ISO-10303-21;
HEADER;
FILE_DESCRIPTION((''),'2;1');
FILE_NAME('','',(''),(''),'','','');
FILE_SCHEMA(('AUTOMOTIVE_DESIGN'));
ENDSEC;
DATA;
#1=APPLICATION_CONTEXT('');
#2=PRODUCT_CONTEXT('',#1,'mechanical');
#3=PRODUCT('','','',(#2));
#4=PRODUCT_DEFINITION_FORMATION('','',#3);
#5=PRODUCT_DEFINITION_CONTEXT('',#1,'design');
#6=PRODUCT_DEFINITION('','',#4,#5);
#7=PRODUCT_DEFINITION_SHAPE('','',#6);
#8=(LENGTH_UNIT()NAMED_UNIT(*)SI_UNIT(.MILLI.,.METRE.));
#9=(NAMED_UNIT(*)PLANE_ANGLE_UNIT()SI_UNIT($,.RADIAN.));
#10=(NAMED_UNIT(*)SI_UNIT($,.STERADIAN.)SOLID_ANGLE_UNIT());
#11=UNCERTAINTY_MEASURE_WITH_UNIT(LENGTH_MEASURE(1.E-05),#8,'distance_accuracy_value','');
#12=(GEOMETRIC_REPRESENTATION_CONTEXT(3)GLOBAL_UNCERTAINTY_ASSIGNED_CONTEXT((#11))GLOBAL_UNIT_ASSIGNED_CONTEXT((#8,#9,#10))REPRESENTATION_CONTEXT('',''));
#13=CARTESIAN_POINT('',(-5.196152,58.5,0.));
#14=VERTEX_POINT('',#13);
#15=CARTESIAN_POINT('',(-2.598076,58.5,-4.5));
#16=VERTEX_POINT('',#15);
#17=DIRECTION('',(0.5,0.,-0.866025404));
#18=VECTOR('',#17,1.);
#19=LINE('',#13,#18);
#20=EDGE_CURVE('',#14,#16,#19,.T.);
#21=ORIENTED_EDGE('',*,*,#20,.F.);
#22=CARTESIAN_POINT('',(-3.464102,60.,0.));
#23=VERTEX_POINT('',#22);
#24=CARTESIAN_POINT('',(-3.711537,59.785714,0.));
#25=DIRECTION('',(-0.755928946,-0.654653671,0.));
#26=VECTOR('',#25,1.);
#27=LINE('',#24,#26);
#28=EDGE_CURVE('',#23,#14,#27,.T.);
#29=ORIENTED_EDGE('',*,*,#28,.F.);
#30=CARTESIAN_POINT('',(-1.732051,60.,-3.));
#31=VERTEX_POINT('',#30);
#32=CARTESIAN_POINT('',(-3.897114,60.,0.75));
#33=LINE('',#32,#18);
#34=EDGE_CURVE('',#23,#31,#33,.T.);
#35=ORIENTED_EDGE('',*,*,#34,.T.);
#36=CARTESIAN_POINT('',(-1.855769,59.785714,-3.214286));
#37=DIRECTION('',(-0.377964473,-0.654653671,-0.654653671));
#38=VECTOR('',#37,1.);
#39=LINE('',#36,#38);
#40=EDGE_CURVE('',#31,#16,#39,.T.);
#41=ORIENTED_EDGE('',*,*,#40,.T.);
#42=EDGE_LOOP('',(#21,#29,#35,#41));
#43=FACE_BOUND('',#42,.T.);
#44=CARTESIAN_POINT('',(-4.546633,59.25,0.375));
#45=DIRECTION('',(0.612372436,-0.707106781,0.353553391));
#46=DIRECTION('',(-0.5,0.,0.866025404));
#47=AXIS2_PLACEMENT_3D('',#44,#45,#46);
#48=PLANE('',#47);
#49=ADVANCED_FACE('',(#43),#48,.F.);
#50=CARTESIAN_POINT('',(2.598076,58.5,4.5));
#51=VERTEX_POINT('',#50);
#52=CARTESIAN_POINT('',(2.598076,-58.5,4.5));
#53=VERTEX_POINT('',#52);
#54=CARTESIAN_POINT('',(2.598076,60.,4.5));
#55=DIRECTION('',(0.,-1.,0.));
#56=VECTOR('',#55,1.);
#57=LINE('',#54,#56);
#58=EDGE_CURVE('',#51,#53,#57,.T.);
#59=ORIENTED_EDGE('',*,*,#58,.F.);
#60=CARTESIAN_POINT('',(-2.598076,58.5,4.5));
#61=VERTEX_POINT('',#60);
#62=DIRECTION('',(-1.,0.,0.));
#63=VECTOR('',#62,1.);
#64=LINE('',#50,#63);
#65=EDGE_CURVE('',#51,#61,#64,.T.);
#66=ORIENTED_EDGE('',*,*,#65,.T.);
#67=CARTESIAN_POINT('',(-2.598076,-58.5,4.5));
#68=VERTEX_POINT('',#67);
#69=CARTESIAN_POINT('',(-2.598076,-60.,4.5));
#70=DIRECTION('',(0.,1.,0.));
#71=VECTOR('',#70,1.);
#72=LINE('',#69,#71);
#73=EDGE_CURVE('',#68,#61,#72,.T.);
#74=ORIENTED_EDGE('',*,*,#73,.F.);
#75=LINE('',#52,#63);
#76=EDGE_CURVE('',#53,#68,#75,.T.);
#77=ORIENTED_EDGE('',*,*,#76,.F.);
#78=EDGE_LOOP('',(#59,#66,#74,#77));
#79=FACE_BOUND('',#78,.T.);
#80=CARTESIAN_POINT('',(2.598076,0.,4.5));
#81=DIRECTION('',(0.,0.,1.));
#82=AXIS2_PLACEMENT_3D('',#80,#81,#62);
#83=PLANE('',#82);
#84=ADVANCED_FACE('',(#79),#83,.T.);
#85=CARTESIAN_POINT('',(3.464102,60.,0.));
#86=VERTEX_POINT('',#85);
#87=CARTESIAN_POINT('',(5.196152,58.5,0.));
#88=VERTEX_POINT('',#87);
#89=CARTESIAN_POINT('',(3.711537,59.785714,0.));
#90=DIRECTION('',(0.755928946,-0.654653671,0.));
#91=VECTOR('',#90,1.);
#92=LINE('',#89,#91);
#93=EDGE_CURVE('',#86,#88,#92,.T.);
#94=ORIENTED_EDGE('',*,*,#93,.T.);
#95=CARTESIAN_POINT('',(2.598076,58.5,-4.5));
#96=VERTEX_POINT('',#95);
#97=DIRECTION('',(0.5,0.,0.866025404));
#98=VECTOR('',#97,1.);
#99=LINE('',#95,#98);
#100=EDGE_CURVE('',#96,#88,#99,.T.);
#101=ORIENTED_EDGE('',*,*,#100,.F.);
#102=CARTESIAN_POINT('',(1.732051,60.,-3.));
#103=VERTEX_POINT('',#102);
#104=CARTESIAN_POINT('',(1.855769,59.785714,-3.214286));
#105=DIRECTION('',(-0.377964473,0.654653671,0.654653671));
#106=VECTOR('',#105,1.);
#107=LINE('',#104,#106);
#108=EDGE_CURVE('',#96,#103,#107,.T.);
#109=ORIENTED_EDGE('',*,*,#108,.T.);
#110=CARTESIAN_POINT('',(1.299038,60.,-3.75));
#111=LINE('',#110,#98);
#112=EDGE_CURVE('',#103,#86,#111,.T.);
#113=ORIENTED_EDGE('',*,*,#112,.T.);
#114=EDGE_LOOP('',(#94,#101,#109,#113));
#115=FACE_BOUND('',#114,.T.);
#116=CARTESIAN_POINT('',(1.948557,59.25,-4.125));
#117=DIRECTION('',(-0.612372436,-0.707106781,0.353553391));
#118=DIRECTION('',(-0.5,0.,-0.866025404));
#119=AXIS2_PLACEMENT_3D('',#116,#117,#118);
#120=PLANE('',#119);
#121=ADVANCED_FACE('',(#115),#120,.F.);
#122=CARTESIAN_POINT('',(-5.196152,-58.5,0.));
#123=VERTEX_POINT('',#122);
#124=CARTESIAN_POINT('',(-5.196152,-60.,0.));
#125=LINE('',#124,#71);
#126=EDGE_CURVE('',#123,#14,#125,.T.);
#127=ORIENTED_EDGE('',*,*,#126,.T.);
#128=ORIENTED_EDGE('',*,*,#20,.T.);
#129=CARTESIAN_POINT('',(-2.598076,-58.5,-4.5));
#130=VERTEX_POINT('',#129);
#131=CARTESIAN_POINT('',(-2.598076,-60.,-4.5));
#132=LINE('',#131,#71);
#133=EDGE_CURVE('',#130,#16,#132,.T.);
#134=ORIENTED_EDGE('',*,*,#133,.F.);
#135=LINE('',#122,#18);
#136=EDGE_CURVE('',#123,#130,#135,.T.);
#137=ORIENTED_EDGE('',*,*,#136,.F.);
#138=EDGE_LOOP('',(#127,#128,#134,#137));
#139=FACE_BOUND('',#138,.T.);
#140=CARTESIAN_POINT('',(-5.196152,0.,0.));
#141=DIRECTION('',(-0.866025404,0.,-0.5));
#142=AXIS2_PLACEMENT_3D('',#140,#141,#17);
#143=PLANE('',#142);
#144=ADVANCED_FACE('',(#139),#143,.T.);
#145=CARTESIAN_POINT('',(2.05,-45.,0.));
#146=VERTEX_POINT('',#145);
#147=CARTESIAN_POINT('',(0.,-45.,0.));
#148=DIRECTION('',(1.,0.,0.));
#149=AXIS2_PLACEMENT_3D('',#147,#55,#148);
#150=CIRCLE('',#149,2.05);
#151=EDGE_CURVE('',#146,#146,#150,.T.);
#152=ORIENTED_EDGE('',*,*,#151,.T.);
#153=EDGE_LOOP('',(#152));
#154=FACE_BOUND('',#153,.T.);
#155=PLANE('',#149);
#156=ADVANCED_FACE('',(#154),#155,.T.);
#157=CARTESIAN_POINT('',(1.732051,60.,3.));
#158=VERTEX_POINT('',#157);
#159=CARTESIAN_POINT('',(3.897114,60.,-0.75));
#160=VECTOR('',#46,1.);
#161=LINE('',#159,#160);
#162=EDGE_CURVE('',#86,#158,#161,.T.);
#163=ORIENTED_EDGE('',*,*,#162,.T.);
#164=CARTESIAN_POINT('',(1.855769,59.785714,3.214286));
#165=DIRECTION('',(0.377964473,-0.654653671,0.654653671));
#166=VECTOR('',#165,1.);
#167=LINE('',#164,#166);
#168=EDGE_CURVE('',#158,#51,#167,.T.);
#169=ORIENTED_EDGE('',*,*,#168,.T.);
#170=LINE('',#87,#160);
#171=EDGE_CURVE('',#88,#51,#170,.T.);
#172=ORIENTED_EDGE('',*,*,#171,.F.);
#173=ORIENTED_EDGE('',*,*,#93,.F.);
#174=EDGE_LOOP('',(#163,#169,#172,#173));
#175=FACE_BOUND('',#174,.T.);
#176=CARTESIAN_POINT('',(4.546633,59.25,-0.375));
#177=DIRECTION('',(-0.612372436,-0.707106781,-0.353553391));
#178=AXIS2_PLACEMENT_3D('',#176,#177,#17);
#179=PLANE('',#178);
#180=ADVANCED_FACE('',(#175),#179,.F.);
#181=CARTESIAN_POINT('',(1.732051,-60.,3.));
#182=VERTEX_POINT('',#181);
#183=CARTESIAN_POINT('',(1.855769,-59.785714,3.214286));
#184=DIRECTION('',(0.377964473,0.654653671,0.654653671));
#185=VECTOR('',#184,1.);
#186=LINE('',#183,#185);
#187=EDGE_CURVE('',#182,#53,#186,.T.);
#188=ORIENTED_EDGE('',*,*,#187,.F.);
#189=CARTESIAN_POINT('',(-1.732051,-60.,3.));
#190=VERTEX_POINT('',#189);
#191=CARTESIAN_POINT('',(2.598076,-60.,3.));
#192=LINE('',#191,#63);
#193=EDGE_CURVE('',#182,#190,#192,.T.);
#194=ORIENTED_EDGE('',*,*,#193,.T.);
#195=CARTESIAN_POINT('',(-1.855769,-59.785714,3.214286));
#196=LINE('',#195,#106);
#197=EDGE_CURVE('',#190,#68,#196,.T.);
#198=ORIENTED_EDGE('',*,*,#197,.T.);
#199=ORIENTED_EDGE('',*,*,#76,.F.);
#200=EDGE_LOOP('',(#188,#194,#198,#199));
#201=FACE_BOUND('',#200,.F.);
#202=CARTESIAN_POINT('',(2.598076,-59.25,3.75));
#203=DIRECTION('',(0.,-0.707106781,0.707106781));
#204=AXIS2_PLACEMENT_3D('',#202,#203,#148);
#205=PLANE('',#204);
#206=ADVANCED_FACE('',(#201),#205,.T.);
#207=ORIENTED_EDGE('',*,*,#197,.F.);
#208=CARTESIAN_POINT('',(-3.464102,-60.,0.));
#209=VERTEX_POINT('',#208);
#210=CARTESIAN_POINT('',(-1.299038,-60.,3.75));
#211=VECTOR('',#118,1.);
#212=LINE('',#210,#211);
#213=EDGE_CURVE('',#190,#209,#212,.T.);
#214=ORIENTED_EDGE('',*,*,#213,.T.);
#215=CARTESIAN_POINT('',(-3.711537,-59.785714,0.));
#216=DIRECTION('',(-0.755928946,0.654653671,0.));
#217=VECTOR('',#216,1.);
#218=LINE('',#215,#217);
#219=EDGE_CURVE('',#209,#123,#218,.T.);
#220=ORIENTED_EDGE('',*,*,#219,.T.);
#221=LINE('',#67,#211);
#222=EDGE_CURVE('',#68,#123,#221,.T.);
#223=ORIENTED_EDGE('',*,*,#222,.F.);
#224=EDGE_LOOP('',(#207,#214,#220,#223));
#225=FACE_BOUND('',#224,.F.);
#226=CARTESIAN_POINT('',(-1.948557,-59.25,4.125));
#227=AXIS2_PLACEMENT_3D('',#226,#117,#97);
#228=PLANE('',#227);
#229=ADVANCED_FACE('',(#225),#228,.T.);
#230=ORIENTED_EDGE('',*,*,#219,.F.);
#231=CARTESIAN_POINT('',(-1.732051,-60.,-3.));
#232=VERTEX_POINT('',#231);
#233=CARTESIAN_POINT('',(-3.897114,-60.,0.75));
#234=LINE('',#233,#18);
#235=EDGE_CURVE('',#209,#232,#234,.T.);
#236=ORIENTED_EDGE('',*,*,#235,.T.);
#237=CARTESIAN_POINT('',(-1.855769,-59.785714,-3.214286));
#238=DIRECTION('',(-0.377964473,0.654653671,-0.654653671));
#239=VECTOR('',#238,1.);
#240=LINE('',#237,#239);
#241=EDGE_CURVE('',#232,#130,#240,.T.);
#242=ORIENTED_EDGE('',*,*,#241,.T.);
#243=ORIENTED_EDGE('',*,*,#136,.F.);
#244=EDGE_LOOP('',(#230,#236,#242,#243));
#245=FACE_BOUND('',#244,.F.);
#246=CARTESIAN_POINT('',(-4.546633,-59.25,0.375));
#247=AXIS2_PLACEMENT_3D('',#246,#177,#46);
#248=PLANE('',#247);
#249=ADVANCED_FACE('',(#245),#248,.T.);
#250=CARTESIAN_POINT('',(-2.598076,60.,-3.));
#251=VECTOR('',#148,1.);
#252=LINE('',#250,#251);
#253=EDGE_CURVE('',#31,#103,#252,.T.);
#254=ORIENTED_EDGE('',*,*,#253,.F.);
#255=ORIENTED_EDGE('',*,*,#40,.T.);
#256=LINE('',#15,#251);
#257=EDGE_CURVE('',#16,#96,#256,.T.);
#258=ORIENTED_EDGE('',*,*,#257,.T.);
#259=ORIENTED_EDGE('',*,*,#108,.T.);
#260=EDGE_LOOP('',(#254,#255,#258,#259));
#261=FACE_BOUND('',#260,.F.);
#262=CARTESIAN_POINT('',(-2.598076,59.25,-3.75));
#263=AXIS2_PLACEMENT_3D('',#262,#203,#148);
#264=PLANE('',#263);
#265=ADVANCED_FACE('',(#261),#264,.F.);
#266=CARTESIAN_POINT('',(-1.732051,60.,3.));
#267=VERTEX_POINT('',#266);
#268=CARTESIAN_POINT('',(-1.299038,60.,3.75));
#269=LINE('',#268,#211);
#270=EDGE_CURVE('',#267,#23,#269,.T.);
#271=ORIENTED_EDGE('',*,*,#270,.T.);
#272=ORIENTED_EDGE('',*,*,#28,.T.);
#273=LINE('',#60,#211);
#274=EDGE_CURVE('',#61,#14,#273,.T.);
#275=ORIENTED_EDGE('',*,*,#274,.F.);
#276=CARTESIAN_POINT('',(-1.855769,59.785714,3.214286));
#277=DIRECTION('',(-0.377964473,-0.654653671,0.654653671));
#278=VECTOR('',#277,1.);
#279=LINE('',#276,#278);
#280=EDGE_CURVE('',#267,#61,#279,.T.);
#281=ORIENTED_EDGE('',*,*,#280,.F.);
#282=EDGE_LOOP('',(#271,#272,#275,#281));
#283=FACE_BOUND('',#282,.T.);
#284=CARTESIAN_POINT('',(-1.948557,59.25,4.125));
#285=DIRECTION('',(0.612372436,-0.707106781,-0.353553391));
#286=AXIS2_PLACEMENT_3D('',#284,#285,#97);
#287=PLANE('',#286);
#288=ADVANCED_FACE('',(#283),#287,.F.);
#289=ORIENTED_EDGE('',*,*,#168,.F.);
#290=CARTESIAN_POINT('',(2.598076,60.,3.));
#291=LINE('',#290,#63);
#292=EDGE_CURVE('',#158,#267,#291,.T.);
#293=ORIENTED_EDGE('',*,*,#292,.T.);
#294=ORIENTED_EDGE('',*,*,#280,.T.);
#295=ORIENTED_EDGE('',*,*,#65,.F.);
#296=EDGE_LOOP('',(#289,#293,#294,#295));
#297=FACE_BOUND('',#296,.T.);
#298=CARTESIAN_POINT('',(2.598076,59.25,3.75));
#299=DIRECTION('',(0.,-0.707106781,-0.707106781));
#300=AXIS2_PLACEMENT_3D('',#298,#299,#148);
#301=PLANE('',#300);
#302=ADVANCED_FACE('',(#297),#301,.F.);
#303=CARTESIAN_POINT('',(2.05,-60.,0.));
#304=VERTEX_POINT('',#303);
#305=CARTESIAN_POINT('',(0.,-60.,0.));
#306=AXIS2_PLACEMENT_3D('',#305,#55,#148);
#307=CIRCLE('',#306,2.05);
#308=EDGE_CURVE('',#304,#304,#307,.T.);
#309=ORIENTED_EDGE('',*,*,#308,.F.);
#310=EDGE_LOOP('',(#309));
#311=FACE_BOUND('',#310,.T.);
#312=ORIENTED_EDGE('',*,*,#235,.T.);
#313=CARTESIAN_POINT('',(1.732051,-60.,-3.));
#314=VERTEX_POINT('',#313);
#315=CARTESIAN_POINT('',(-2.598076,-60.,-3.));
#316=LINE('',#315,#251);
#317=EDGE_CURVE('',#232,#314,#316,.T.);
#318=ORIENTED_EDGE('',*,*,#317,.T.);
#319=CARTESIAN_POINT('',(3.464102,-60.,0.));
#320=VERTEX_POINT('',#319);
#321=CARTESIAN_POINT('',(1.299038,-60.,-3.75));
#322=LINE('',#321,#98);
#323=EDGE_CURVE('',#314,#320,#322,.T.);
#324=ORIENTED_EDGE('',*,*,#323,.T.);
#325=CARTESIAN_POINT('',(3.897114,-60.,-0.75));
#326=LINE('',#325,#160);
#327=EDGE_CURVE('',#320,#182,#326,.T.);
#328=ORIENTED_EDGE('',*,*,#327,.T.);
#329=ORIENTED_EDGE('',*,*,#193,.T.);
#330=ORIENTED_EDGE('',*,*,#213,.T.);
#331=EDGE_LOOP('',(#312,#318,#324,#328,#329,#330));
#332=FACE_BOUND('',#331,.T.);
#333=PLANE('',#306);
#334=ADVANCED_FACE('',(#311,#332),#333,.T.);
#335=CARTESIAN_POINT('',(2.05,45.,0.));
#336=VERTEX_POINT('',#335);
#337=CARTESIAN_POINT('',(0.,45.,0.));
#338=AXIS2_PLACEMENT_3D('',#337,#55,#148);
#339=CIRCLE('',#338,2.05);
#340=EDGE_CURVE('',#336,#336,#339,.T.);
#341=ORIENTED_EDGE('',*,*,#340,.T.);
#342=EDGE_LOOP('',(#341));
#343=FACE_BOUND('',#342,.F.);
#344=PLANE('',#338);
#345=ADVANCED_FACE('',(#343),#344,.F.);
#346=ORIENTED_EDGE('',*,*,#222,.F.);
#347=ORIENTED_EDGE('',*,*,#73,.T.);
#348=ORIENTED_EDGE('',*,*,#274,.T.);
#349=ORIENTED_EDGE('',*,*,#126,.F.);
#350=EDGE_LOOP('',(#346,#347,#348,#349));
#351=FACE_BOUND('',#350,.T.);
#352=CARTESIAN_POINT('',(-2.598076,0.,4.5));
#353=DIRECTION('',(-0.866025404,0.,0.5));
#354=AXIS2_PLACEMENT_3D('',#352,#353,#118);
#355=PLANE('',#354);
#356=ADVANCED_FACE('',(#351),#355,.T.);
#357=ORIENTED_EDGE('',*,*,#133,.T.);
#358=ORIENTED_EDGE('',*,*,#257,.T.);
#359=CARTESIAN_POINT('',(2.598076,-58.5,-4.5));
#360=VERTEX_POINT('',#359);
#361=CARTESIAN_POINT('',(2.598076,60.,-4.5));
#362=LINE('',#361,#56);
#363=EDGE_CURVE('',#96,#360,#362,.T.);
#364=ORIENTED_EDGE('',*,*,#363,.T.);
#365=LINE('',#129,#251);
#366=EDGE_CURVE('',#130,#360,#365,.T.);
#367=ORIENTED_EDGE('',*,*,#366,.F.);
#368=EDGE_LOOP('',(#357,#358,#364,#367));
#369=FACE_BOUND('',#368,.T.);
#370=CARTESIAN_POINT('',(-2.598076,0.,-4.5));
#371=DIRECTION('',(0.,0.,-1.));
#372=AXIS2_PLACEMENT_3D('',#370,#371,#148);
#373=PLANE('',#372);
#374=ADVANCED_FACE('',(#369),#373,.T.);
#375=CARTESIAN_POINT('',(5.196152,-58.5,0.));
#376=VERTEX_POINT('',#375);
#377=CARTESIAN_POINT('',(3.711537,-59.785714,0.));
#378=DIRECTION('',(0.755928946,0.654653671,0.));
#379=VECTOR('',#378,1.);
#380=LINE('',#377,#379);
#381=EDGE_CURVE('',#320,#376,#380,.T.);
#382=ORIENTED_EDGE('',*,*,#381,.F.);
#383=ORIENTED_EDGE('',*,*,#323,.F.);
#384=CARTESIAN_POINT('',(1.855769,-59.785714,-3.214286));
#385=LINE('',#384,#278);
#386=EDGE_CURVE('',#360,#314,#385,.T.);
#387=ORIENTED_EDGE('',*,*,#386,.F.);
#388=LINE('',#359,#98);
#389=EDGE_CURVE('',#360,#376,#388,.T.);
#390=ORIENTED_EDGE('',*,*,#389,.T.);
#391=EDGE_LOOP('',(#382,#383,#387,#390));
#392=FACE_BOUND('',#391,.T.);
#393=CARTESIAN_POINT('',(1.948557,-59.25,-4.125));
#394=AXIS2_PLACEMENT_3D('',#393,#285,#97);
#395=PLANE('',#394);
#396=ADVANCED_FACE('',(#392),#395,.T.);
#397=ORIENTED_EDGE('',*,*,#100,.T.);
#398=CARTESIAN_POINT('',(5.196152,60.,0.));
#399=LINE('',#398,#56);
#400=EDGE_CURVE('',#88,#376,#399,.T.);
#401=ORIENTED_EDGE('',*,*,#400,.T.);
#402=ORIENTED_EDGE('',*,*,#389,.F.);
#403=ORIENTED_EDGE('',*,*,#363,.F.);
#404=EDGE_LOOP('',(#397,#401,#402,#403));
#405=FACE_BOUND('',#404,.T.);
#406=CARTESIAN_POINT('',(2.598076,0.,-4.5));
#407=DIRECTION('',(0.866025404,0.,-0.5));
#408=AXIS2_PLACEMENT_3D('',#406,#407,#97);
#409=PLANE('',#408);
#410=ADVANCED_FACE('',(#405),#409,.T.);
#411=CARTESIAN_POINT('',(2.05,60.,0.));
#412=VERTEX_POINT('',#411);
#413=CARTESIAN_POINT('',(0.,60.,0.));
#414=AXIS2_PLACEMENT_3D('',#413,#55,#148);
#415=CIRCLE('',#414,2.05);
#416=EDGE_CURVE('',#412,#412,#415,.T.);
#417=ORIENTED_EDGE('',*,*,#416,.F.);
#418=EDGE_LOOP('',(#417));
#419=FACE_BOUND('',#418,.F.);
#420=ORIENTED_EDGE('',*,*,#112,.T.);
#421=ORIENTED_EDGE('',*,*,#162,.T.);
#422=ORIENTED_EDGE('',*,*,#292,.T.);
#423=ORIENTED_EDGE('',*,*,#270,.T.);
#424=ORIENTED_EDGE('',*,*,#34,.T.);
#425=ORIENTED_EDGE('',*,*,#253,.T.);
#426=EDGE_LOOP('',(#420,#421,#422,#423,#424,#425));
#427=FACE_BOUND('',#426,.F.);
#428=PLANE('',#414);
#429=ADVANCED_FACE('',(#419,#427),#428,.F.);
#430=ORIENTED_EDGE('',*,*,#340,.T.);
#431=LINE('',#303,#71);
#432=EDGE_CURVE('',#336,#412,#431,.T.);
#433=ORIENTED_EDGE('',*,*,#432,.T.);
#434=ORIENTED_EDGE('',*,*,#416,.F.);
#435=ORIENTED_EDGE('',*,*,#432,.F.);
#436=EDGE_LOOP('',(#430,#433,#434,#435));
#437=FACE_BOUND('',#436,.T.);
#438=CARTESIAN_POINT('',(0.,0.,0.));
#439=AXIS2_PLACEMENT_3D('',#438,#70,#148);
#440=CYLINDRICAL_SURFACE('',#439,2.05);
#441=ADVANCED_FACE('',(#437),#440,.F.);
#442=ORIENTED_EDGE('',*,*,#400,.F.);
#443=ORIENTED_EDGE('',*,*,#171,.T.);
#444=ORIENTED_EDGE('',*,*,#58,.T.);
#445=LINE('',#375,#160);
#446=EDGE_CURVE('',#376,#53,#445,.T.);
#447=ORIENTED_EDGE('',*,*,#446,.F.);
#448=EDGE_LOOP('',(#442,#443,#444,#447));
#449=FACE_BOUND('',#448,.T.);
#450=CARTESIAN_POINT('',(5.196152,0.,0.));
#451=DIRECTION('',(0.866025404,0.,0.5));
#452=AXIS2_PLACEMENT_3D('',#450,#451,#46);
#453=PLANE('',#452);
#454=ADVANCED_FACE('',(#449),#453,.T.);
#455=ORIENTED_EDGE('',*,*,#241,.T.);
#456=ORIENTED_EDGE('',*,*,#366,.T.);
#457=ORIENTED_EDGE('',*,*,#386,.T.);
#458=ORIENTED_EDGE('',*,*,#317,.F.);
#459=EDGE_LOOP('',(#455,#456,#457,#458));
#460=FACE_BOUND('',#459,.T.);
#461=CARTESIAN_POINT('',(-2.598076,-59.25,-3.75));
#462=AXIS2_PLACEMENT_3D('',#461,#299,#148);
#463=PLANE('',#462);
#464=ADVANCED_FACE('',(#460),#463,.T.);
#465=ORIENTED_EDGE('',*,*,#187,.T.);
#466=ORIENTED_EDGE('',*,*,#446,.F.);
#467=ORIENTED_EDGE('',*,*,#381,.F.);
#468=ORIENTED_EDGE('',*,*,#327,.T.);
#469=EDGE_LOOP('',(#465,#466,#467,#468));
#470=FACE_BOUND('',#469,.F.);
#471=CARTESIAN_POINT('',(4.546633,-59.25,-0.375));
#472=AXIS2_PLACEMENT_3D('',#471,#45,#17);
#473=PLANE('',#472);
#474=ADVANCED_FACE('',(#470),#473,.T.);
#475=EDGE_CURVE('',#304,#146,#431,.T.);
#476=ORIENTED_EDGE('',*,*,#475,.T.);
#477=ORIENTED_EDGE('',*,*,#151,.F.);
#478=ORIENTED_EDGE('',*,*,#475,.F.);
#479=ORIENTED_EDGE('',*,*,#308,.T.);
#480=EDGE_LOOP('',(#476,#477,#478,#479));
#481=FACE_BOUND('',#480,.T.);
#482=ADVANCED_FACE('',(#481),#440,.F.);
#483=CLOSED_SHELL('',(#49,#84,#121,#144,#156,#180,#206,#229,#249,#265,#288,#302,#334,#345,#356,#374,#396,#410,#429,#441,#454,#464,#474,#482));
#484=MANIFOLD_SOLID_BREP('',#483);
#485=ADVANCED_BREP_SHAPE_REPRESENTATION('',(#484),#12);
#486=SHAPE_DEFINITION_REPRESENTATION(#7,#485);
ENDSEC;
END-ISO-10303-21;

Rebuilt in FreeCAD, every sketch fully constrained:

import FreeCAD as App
import Part
import Sketcher
from FreeCAD import Vector
Q = App.Units.Quantity


def edges_at(feature, points):
    """Names of the edges that pass closest to the given points."""
    edges = feature.Shape.Edges
    near = lambda p: min(range(len(edges)), key=lambda i: edges[i].distToShape(Part.Vertex(*p))[0])
    return sorted({f"Edge{near(p) + 1}" for p in points})


def add_polygon(sketch, points):
    """Adds a closed chain of lines whose ends are joined by coincident constraints."""
    first, n = sketch.GeometryCount, len(points)
    for a, b in zip(points, points[1:] + points[:1]):
        sketch.addGeometry(Part.LineSegment(App.Vector(*a, 0), App.Vector(*b, 0)), False)
    for i in range(n):
        sketch.addConstraint(Sketcher.Constraint("Coincident", first + i, 2, first + (i + 1) % n, 1))

doc = App.newDocument("Part")
body = doc.addObject("PartDesign::Body", "Body")

sketch1 = body.newObject("Sketcher::SketchObject", "Sketch")
sketch1.AttachmentSupport = (doc.getObject("XZ_Plane"), [""])
sketch1.MapMode = "FlatFace"
add_polygon(sketch1, [(-2.6, -4.5), (2.6, -4.5), (5.2, 0), (2.6, 4.5), (-2.6, 4.5), (-5.2, 0)])
sketch1.addGeometry(Part.Circle(Vector(0, 0, 0), Vector(0, 0, 1), 2), False)
sketch1.addConstraint([
    Sketcher.Constraint("Horizontal", 0),
    Sketcher.Constraint("Horizontal", 3),
    Sketcher.Constraint("Coincident", 6, 3, -1, 1),
    Sketcher.Constraint("Symmetric", 0, 2, 3, 2, -1, 1),
    Sketcher.Constraint("Symmetric", 1, 2, 4, 2, -1, 1),
    Sketcher.Constraint("PointOnObject", 1, 2, -1),
    Sketcher.Constraint("Parallel", 2, 5),
    Sketcher.Constraint("Vertical", 0, 2, 2, 2),
    Sketcher.Constraint("Diameter", 6, Q("4.1 mm")),
    Sketcher.Constraint("Angle", 1, Q("60 deg")),
    Sketcher.Constraint("DistanceY", 0, 2, 2, 2, Q("9 mm")),
    Sketcher.Constraint("DistanceX", 0, 1, 0, 2, Q("5.196152 mm")),
])
pad1 = body.newObject("PartDesign::Pad", "Pad")
pad1.Profile = sketch1
pad1.Length = 120
pad1.Midplane = True

sketch2 = body.newObject("Sketcher::SketchObject", "Sketch001")
sketch2.AttachmentSupport = (doc.getObject("XZ_Plane"), [""])
sketch2.MapMode = "FlatFace"
sketch2.addGeometry(Part.Circle(Vector(0, 0, 0), Vector(0, 0, 1), 2), False)
sketch2.addConstraint([
    Sketcher.Constraint("Coincident", 0, 3, -1, 1),
    Sketcher.Constraint("Diameter", 0, Q("4.1 mm")),
])
pad2 = body.newObject("PartDesign::Pad", "Pad001")
pad2.Profile = sketch2
pad2.Length = 90
pad2.Midplane = True
doc.recompute()

chamfer = body.newObject("PartDesign::Chamfer", "Chamfer")
chamfer.Base = (pad2, edges_at(pad2, [
    (3.897, -60, 2.25),
    (0, -60, 4.5),
    (-3.897, -60, 2.25),
    (-3.897, -60, -2.25),
    (0, -60, -4.5),
    (3.897, -60, -2.25),
    (3.897, 60, 2.25),
    (0, 60, 4.5),
    (-3.897, 60, 2.25),
    (-3.897, 60, -2.25),
    (0, 60, -4.5),
    (3.897, 60, -2.25),
]))
chamfer.Size = 1.5

doc.recompute()
